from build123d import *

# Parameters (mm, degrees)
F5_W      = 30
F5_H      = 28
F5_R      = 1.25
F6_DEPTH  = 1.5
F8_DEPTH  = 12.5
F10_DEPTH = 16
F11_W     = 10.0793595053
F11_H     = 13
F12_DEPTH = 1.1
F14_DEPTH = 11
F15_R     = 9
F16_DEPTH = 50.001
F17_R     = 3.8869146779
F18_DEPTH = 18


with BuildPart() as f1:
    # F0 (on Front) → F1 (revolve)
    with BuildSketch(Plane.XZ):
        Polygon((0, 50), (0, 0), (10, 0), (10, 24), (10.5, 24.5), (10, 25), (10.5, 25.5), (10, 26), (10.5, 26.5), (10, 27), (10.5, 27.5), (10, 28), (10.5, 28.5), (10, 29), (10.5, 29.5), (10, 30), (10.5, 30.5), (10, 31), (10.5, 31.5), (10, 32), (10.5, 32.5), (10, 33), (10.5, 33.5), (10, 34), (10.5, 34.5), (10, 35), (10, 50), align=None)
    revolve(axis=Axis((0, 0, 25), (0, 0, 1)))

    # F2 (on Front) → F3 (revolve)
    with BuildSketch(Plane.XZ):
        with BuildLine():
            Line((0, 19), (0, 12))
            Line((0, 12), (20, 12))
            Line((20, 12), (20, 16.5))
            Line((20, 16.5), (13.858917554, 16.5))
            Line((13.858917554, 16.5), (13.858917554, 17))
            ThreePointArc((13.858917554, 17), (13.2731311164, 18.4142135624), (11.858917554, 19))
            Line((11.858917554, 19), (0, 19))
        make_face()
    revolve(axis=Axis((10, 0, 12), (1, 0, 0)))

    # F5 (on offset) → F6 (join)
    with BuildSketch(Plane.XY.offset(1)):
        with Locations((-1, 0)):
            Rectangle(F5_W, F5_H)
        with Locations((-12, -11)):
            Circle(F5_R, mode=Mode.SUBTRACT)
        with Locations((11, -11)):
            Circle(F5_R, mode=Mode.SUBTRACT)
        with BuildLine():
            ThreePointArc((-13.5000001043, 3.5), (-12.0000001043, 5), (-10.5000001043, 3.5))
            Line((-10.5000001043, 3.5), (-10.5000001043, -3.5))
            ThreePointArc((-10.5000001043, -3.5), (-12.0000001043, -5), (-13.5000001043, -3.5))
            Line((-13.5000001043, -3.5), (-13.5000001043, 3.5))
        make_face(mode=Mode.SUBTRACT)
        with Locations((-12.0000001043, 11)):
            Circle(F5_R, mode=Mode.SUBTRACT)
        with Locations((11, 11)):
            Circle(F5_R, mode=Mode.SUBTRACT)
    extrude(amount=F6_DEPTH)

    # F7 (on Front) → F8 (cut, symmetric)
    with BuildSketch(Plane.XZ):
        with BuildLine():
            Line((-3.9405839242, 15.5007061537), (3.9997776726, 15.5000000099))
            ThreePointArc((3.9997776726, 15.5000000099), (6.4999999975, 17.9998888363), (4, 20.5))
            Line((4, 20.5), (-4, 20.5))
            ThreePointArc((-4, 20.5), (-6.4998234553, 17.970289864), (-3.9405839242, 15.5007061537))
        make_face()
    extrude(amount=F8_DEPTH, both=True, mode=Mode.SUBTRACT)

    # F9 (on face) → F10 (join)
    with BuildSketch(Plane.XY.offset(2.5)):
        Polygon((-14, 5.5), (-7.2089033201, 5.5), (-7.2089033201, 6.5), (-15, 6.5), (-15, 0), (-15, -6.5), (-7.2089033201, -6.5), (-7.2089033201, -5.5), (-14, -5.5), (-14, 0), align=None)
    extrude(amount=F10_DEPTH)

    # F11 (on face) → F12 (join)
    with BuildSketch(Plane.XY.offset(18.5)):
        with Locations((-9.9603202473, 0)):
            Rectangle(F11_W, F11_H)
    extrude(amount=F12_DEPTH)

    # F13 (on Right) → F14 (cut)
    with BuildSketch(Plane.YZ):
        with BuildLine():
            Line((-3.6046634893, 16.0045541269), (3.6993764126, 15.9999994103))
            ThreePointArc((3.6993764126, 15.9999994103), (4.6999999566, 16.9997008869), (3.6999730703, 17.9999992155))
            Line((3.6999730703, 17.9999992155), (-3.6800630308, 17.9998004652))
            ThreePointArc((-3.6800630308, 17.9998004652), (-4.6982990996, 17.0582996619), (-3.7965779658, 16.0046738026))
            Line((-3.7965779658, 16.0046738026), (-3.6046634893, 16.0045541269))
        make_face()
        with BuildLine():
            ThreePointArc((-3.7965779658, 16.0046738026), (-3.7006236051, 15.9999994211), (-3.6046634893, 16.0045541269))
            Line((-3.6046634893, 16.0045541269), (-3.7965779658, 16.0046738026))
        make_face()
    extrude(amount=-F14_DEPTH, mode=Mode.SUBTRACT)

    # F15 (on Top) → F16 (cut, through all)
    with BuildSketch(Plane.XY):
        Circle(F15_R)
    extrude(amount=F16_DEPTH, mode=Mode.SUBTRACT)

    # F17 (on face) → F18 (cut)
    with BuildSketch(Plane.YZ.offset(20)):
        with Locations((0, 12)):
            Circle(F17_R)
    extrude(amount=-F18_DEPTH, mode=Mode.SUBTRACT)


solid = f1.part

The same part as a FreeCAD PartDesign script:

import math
import FreeCAD as App
import Part
import Sketcher

V = App.Vector
Q = App.Units.Quantity

doc = App.newDocument("Part")
body = doc.addObject("PartDesign::Body", "Body")

# Sketch on XZ plane
sketch1 = doc.addObject("Sketcher::SketchObject", "Sketch")
body.addObject(sketch1)
sketch1.AttachmentSupport = (doc.XZ_Plane, [""])
sketch1.MapMode = "FlatFace"
sketch1.addGeometry([
    Part.LineSegment(V(0, 50, 0), V(0, 0, 0)),  # 0
    Part.LineSegment(V(0, 0, 0), V(10, 0, 0)),  # 1
    Part.LineSegment(V(10, 0, 0), V(10, 24, 0)),  # 2
    Part.LineSegment(V(10, 24, 0), V(10.5, 24.5, 0)),  # 3
    Part.LineSegment(V(10.5, 24.5, 0), V(10, 25, 0)),  # 4
    Part.LineSegment(V(10, 25, 0), V(10.5, 25.5, 0)),  # 5
    Part.LineSegment(V(10.5, 25.5, 0), V(10, 26, 0)),  # 6
    Part.LineSegment(V(10, 26, 0), V(10.5, 26.5, 0)),  # 7
    Part.LineSegment(V(10.5, 26.5, 0), V(10, 27, 0)),  # 8
    Part.LineSegment(V(10, 27, 0), V(10.5, 27.5, 0)),  # 9
    Part.LineSegment(V(10.5, 27.5, 0), V(10, 28, 0)),  # 10
    Part.LineSegment(V(10, 28, 0), V(10.5, 28.5, 0)),  # 11
    Part.LineSegment(V(10.5, 28.5, 0), V(10, 29, 0)),  # 12
    Part.LineSegment(V(10, 29, 0), V(10.5, 29.5, 0)),  # 13
    Part.LineSegment(V(10.5, 29.5, 0), V(10, 30, 0)),  # 14
    Part.LineSegment(V(10, 30, 0), V(10.5, 30.5, 0)),  # 15
    Part.LineSegment(V(10.5, 30.5, 0), V(10, 31, 0)),  # 16
    Part.LineSegment(V(10, 31, 0), V(10.5, 31.5, 0)),  # 17
    Part.LineSegment(V(10.5, 31.5, 0), V(10, 32, 0)),  # 18
    Part.LineSegment(V(10, 32, 0), V(10.5, 32.5, 0)),  # 19
    Part.LineSegment(V(10.5, 32.5, 0), V(10, 33, 0)),  # 20
    Part.LineSegment(V(10, 33, 0), V(10.5, 33.5, 0)),  # 21
    Part.LineSegment(V(10.5, 33.5, 0), V(10, 34, 0)),  # 22
    Part.LineSegment(V(10, 34, 0), V(10.5, 34.5, 0)),  # 23
    Part.LineSegment(V(10.5, 34.5, 0), V(10, 35, 0)),  # 24
    Part.LineSegment(V(10, 35, 0), V(10, 50, 0)),  # 25
    Part.LineSegment(V(10, 50, 0), V(0, 50, 0)),  # 26
], False)
sketch1.addConstraint([
    Sketcher.Constraint("Coincident", 0, 2, 1, 1),
    Sketcher.Constraint("Coincident", 1, 2, 2, 1),
    Sketcher.Constraint("Coincident", 2, 2, 3, 1),
    Sketcher.Constraint("Coincident", 3, 2, 4, 1),
    Sketcher.Constraint("Coincident", 4, 2, 5, 1),
    Sketcher.Constraint("Coincident", 5, 2, 6, 1),
    Sketcher.Constraint("Coincident", 6, 2, 7, 1),
    Sketcher.Constraint("Coincident", 7, 2, 8, 1),
    Sketcher.Constraint("Coincident", 8, 2, 9, 1),
    Sketcher.Constraint("Coincident", 9, 2, 10, 1),
    Sketcher.Constraint("Coincident", 10, 2, 11, 1),
    Sketcher.Constraint("Coincident", 11, 2, 12, 1),
    Sketcher.Constraint("Coincident", 12, 2, 13, 1),
    Sketcher.Constraint("Coincident", 13, 2, 14, 1),
    Sketcher.Constraint("Coincident", 14, 2, 15, 1),
    Sketcher.Constraint("Coincident", 15, 2, 16, 1),
    Sketcher.Constraint("Coincident", 16, 2, 17, 1),
    Sketcher.Constraint("Coincident", 17, 2, 18, 1),
    Sketcher.Constraint("Coincident", 18, 2, 19, 1),
    Sketcher.Constraint("Coincident", 19, 2, 20, 1),
    Sketcher.Constraint("Coincident", 20, 2, 21, 1),
    Sketcher.Constraint("Coincident", 21, 2, 22, 1),
    Sketcher.Constraint("Coincident", 22, 2, 23, 1),
    Sketcher.Constraint("Coincident", 23, 2, 24, 1),
    Sketcher.Constraint("Coincident", 24, 2, 25, 1),
    Sketcher.Constraint("Coincident", 25, 2, 26, 1),
    Sketcher.Constraint("Coincident", 26, 2, 0, 1),
    Sketcher.Constraint("Vertical", 0),
    Sketcher.Constraint("Horizontal", 1),
    Sketcher.Constraint("Vertical", 2),
    Sketcher.Constraint("Vertical", 25),
    Sketcher.Constraint("Horizontal", 26),
    Sketcher.Constraint("Coincident", 0, 2, -1, 1),
    Sketcher.Constraint("Perpendicular", 3, 4),
    Sketcher.Constraint("Perpendicular", 4, 5),
    Sketcher.Constraint("Perpendicular", 5, 6),
    Sketcher.Constraint("Perpendicular", 6, 7),
    Sketcher.Constraint("Perpendicular", 7, 8),
    Sketcher.Constraint("Perpendicular", 8, 9),
    Sketcher.Constraint("Perpendicular", 9, 10),
    Sketcher.Constraint("Perpendicular", 10, 11),
    Sketcher.Constraint("Perpendicular", 11, 12),
    Sketcher.Constraint("Perpendicular", 12, 13),
    Sketcher.Constraint("Perpendicular", 13, 14),
    Sketcher.Constraint("Perpendicular", 14, 15),
    Sketcher.Constraint("Perpendicular", 15, 16),
    Sketcher.Constraint("Perpendicular", 16, 17),
    Sketcher.Constraint("Perpendicular", 17, 18),
    Sketcher.Constraint("Perpendicular", 18, 19),
    Sketcher.Constraint("Perpendicular", 19, 20),
    Sketcher.Constraint("Perpendicular", 20, 21),
    Sketcher.Constraint("Perpendicular", 21, 22),
    Sketcher.Constraint("Perpendicular", 22, 23),
    Sketcher.Constraint("Perpendicular", 23, 24),
    Sketcher.Constraint("Vertical", 2, 2, 4, 2),
    Sketcher.Constraint("Vertical", 3, 2, 5, 2),
    Sketcher.Constraint("Vertical", 4, 2, 6, 2),
    Sketcher.Constraint("Vertical", 5, 2, 7, 2),
    Sketcher.Constraint("Vertical", 6, 2, 8, 2),
    Sketcher.Constraint("Vertical", 7, 2, 9, 2),
    Sketcher.Constraint("Vertical", 8, 2, 10, 2),
    Sketcher.Constraint("Vertical", 9, 2, 11, 2),
    Sketcher.Constraint("Vertical", 10, 2, 12, 2),
    Sketcher.Constraint("Vertical", 11, 2, 13, 2),
    Sketcher.Constraint("Vertical", 12, 2, 14, 2),
    Sketcher.Constraint("Vertical", 13, 2, 15, 2),
    Sketcher.Constraint("Vertical", 14, 2, 16, 2),
    Sketcher.Constraint("Vertical", 15, 2, 17, 2),
    Sketcher.Constraint("Vertical", 16, 2, 18, 2),
    Sketcher.Constraint("Vertical", 17, 2, 19, 2),
    Sketcher.Constraint("Vertical", 18, 2, 20, 2),
    Sketcher.Constraint("Vertical", 19, 2, 21, 2),
    Sketcher.Constraint("Vertical", 20, 2, 22, 2),
    Sketcher.Constraint("Vertical", 21, 2, 23, 2),
    Sketcher.Constraint("Vertical", 22, 2, 24, 2),
    Sketcher.Constraint("Equal", 3, 4),
    Sketcher.Constraint("DistanceX", 1, 1, 1, 2, Q("10 mm")),
    Sketcher.Constraint("DistanceY", 0, 2, 0, 1, Q("50 mm")),
    Sketcher.Constraint("DistanceY", 2, 1, 2, 2, Q("24 mm")),
    Sketcher.Constraint("DistanceY", 25, 1, 25, 2, Q("15 mm")),
])
revolution = doc.addObject("PartDesign::Revolution", "Revolution")
body.addObject(revolution)
revolution.Profile = sketch1
revolution.ReferenceAxis = (sketch1, ["V_Axis"])
revolution.Angle = 360

# Sketch on XZ plane
sketch2 = doc.addObject("Sketcher::SketchObject", "Sketch001")
body.addObject(sketch2)
sketch2.AttachmentSupport = (doc.XZ_Plane, [""])
sketch2.MapMode = "FlatFace"
sketch2.addGeometry([
    Part.LineSegment(V(0, 19, 0), V(0, 12, 0)),  # 0
    Part.LineSegment(V(0, 12, 0), V(20, 12, 0)),  # 1
    Part.LineSegment(V(20, 12, 0), V(20, 16.5, 0)),  # 2
    Part.LineSegment(V(20, 16.5, 0), V(13.9, 16.5, 0)),  # 3
    Part.LineSegment(V(13.9, 16.5, 0), V(13.9, 17, 0)),  # 4
    Part.ArcOfCircle(Part.Circle(V(11.9, 17, 0), V(0, 0, 1), 2), math.radians(0), math.radians(90)),  # 5
    Part.LineSegment(V(11.9, 19, 0), V(0, 19, 0)),  # 6
], False)
sketch2.addGeometry(Part.LineSegment(V(0, 12, 0), V(20, 12, 0)), True)  # axis
sketch2.addConstraint([
    Sketcher.Constraint("Coincident", 0, 2, 1, 1),
    Sketcher.Constraint("Coincident", 1, 2, 2, 1),
    Sketcher.Constraint("Coincident", 2, 2, 3, 1),
    Sketcher.Constraint("Coincident", 3, 2, 4, 1),
    Sketcher.Constraint("Tangent", 4, 2, 5, 1),
    Sketcher.Constraint("Tangent", 5, 2, 6, 1),
    Sketcher.Constraint("Coincident", 6, 2, 0, 1),
    Sketcher.Constraint("Vertical", 0),
    Sketcher.Constraint("Horizontal", 1),
    Sketcher.Constraint("Vertical", 2),
    Sketcher.Constraint("Horizontal", 3),
    Sketcher.Constraint("Vertical", 4),
    Sketcher.Constraint("Horizontal", 6),
    Sketcher.Constraint("Horizontal", 7),
    Sketcher.Constraint("Coincident", 7, 1, 0, 2),
    Sketcher.Constraint("PointOnObject", 0, 2, -2),
    Sketcher.Constraint("Vertical", 2, 2, 7, 2),
    Sketcher.Constraint("Radius", 5, Q("2 mm")),
    Sketcher.Constraint("DistanceX", 1, 1, 1, 2, Q("20 mm")),
    Sketcher.Constraint("DistanceY", 0, 2, 0, 1, Q("7 mm")),
    Sketcher.Constraint("DistanceY", 2, 1, 2, 2, Q("4.5 mm")),
    Sketcher.Constraint("DistanceY", -1, 1, 5, 3, Q("17 mm")),
    Sketcher.Constraint("DistanceX", 3, 2, 3, 1, Q("6.141082 mm")),
])
revolution2 = doc.addObject("PartDesign::Revolution", "Revolution001")
body.addObject(revolution2)
revolution2.Profile = sketch2
revolution2.ReferenceAxis = (sketch2, ["Axis0"])
revolution2.Angle = 360

# Sketch on XY plane
sketch3 = doc.addObject("Sketcher::SketchObject", "Sketch002")
body.addObject(sketch3)
sketch3.AttachmentSupport = (doc.XY_Plane, [""])
sketch3.MapMode = "FlatFace"
sketch3.AttachmentOffset = App.Placement(V(0, 0, 1), App.Rotation())
sketch3.addGeometry([
    Part.LineSegment(V(-16, 14, 0), V(-16, -14, 0)),  # 0
    Part.LineSegment(V(-16, -14, 0), V(14, -14, 0)),  # 1
    Part.LineSegment(V(14, -14, 0), V(14, 14, 0)),  # 2
    Part.LineSegment(V(14, 14, 0), V(-16, 14, 0)),  # 3
    Part.Circle(V(-12, -11, 0), V(0, 0, 1), 1.2),  # 4
    Part.LineSegment(V(-13.5, -3.5, 0), V(-13.5, 3.5, 0)),  # 5
    Part.ArcOfCircle(Part.Circle(V(-12, 3.5, 0), V(0, 0, 1), 1.5), math.radians(0), math.radians(180)),  # 6
    Part.LineSegment(V(-10.5, 3.5, 0), V(-10.5, -3.5, 0)),  # 7
    Part.ArcOfCircle(Part.Circle(V(-12, -3.5, 0), V(0, 0, 1), 1.5), math.radians(180), math.radians(360)),  # 8
    Part.Circle(V(11, -11, 0), V(0, 0, 1), 1.2),  # 9
    Part.Circle(V(-12, 11, 0), V(0, 0, 1), 1.2),  # 10
    Part.Circle(V(11, 11, 0), V(0, 0, 1), 1.2),  # 11
], False)
sketch3.addConstraint([
    Sketcher.Constraint("Coincident", 0, 2, 1, 1),
    Sketcher.Constraint("Coincident", 1, 2, 2, 1),
    Sketcher.Constraint("Coincident", 2, 2, 3, 1),
    Sketcher.Constraint("Coincident", 3, 2, 0, 1),
    Sketcher.Constraint("Tangent", 5, 2, 6, 2),
    Sketcher.Constraint("Tangent", 6, 1, 7, 1),
    Sketcher.Constraint("Tangent", 7, 2, 8, 2),
    Sketcher.Constraint("Tangent", 8, 1, 5, 1),
    Sketcher.Constraint("Vertical", 0),
    Sketcher.Constraint("Horizontal", 1),
    Sketcher.Constraint("Vertical", 2),
    Sketcher.Constraint("Horizontal", 3),
    Sketcher.Constraint("Vertical", 5),
    Sketcher.Constraint("Vertical", 7),
    Sketcher.Constraint("Equal", 4, 9),
    Sketcher.Constraint("Equal", 9, 10),
    Sketcher.Constraint("Equal", 10, 11),
    Sketcher.Constraint("Symmetric", 4, 3, 10, 3, -1),
    Sketcher.Constraint("Symmetric", 9, 3, 11, 3, -1),
    Sketcher.Constraint("Horizontal", 4, 3, 9, 3),
    Sketcher.Constraint("Vertical", 4, 3, 6, 3),
    Sketcher.Constraint("Diameter", 4, Q("2.5 mm")),
    Sketcher.Constraint("Radius", 6, Q("1.5 mm")),
    Sketcher.Constraint("DistanceX", 1, 1, 1, 2, Q("30 mm")),
    Sketcher.Constraint("DistanceY", 0, 2, 0, 1, Q("28 mm")),
    Sketcher.Constraint("DistanceY", 5, 1, 5, 2, Q("7 mm")),
    Sketcher.Constraint("DistanceX", 4, 3, -1, 1, Q("12 mm")),
    Sketcher.Constraint("DistanceY", 4, 3, -1, 1, Q("11 mm")),
    Sketcher.Constraint("DistanceX", -1, 1, 9, 3, Q("11 mm")),
    Sketcher.Constraint("DistanceX", 0, 2, -1, 1, Q("16 mm")),
    Sketcher.Constraint("DistanceY", 0, 2, -1, 1, Q("14 mm")),
    Sketcher.Constraint("DistanceY", -1, 1, 6, 3, Q("3.5 mm")),
])
pad1 = doc.addObject("PartDesign::Pad", "Pad")
body.addObject(pad1)
pad1.Profile = sketch3
pad1.Length = 1.5

# Sketch on XZ plane
sketch4 = doc.addObject("Sketcher::SketchObject", "Sketch003")
body.addObject(sketch4)
sketch4.AttachmentSupport = (doc.XZ_Plane, [""])
sketch4.MapMode = "FlatFace"
sketch4.addGeometry([
    Part.LineSegment(V(-3.9, 15.5, 0), V(4, 15.5, 0)),
    Part.ArcOfCircle(Part.Circle(V(4, 18, 0), V(0, 0, 1), 2.5), math.radians(-90), math.radians(90)),
    Part.LineSegment(V(4, 20.5, 0), V(-4, 20.5, 0)),
    Part.ArcOfCircle(Part.Circle(V(-4, 18, 0), V(0, 0, 1), 2.5), math.radians(90), math.radians(271)),
], False)
sketch4.addConstraint([
    Sketcher.Constraint("Tangent", 0, 2, 1, 1),
    Sketcher.Constraint("Tangent", 1, 2, 2, 1),
    Sketcher.Constraint("Tangent", 2, 2, 3, 1),
    Sketcher.Constraint("Coincident", 3, 2, 0, 1),
    Sketcher.Constraint("Horizontal", 2),
    Sketcher.Constraint("Equal", 1, 3),
    Sketcher.Constraint("Radius", 1, Q("2.5 mm")),
    Sketcher.Constraint("DistanceX", 2, 2, 2, 1, Q("8 mm")),
    Sketcher.Constraint("DistanceX", -1, 1, 1, 3, Q("4 mm")),
    Sketcher.Constraint("DistanceY", -1, 1, 1, 3, Q("18 mm")),
    Sketcher.Constraint("Distance", 0, Q("7.940362 mm")),
])
pocket1 = doc.addObject("PartDesign::Pocket", "Pocket")
body.addObject(pocket1)
pocket1.Profile = sketch4
pocket1.Length = 25
pocket1.Midplane = True

# Sketch on XY plane
sketch5 = doc.addObject("Sketcher::SketchObject", "Sketch004")
body.addObject(sketch5)
sketch5.AttachmentSupport = (doc.XY_Plane, [""])
sketch5.MapMode = "FlatFace"
sketch5.AttachmentOffset = App.Placement(V(0, 0, 2.5), App.Rotation())
sketch5.addGeometry([
    Part.LineSegment(V(-14, 5.5, 0), V(-7.2, 5.5, 0)),  # 0
    Part.LineSegment(V(-7.2, 5.5, 0), V(-7.2, 6.5, 0)),  # 1
    Part.LineSegment(V(-7.2, 6.5, 0), V(-15, 6.5, 0)),  # 2
    Part.LineSegment(V(-15, 6.5, 0), V(-15, -6.5, 0)),  # 3
    Part.LineSegment(V(-15, -6.5, 0), V(-7.2, -6.5, 0)),  # 4
    Part.LineSegment(V(-7.2, -6.5, 0), V(-7.2, -5.5, 0)),  # 5
    Part.LineSegment(V(-7.2, -5.5, 0), V(-14, -5.5, 0)),  # 6
    Part.LineSegment(V(-14, -5.5, 0), V(-14, 5.5, 0)),  # 7
], False)
sketch5.addConstraint([
    Sketcher.Constraint("Coincident", 0, 2, 1, 1),
    Sketcher.Constraint("Coincident", 1, 2, 2, 1),
    Sketcher.Constraint("Coincident", 2, 2, 3, 1),
    Sketcher.Constraint("Coincident", 3, 2, 4, 1),
    Sketcher.Constraint("Coincident", 4, 2, 5, 1),
    Sketcher.Constraint("Coincident", 5, 2, 6, 1),
    Sketcher.Constraint("Coincident", 6, 2, 7, 1),
    Sketcher.Constraint("Coincident", 7, 2, 0, 1),
    Sketcher.Constraint("Horizontal", 0),
    Sketcher.Constraint("Vertical", 1),
    Sketcher.Constraint("Horizontal", 2),
    Sketcher.Constraint("Vertical", 3),
    Sketcher.Constraint("Horizontal", 4),
    Sketcher.Constraint("Vertical", 5),
    Sketcher.Constraint("Horizontal", 6),
    Sketcher.Constraint("Vertical", 7),
    Sketcher.Constraint("Symmetric", 1, 2, 4, 2, -1),
    Sketcher.Constraint("Equal", 1, 5),
    Sketcher.Constraint("DistanceY", 1, 1, 1, 2, Q("1 mm")),
    Sketcher.Constraint("DistanceY", 3, 2, 3, 1, Q("13 mm")),
    Sketcher.Constraint("DistanceX", 2, 2, -1, 1, Q("15 mm")),
    Sketcher.Constraint("DistanceX", 6, 2, -1, 1, Q("14 mm")),
    Sketcher.Constraint("DistanceX", 0, 1, 0, 2, Q("6.791097 mm")),
])
pad2 = doc.addObject("PartDesign::Pad", "Pad001")
body.addObject(pad2)
pad2.Profile = sketch5
pad2.Length = 16

# Sketch on XY plane
sketch6 = doc.addObject("Sketcher::SketchObject", "Sketch005")
body.addObject(sketch6)
sketch6.AttachmentSupport = (doc.XY_Plane, [""])
sketch6.MapMode = "FlatFace"
sketch6.AttachmentOffset = App.Placement(V(0, 0, 18.5), App.Rotation())
sketch6.addGeometry([
    Part.LineSegment(V(-15, 6, 0), V(-15, -6, 0)),
    Part.LineSegment(V(-15, -6, 0), V(-5, -6, 0)),
    Part.LineSegment(V(-5, -6, 0), V(-5, 6, 0)),
    Part.LineSegment(V(-5, 6, 0), V(-15, 6, 0)),
], False)
sketch6.addConstraint([
    Sketcher.Constraint("Coincident", 0, 2, 1, 1),
    Sketcher.Constraint("Coincident", 1, 2, 2, 1),
    Sketcher.Constraint("Coincident", 2, 2, 3, 1),
    Sketcher.Constraint("Coincident", 3, 2, 0, 1),
    Sketcher.Constraint("Vertical", 0),
    Sketcher.Constraint("Horizontal", 1),
    Sketcher.Constraint("Vertical", 2),
    Sketcher.Constraint("Horizontal", 3),
    Sketcher.Constraint("DistanceY", 0, 2, 0, 1, Q("13 mm")),
    Sketcher.Constraint("DistanceX", 0, 2, -1, 1, Q("15 mm")),
    Sketcher.Constraint("DistanceY", 0, 2, -1, 1, Q("6.5 mm")),
    Sketcher.Constraint("DistanceX", 1, 1, 1, 2, Q("10.07936 mm")),
])
pad3 = doc.addObject("PartDesign::Pad", "Pad002")
body.addObject(pad3)
pad3.Profile = sketch6
pad3.Length = 1.1

# Sketch on YZ plane
sketch7 = doc.addObject("Sketcher::SketchObject", "Sketch006")
body.addObject(sketch7)
sketch7.AttachmentSupport = (doc.YZ_Plane, [""])
sketch7.MapMode = "FlatFace"
sketch7.addGeometry([
    Part.LineSegment(V(-3.6, 16, 0), V(3.7, 16, 0)),  # 0
    Part.ArcOfCircle(Part.Circle(V(3.7, 17, 0), V(0, 0, 1), 1), math.radians(-90), math.radians(90)),  # 1
    Part.LineSegment(V(3.7, 18, 0), V(-3.68, 18, 0)),  # 2
    Part.ArcOfCircle(Part.Circle(V(-3.7, 17, 0), V(0, 0, 1), 1), math.radians(89), math.radians(264)),  # 3
    Part.ArcOfCircle(Part.Circle(V(-3.7, 17, 0), V(0, 0, 1), 1), math.radians(-95.54), math.radians(-84.53)),  # 4
], False)
sketch7.addConstraint([
    Sketcher.Constraint("Tangent", 0, 2, 1, 1),
    Sketcher.Constraint("Tangent", 1, 2, 2, 1),
    Sketcher.Constraint("Coincident", 2, 2, 3, 1),
    Sketcher.Constraint("Tangent", 3, 2, 4, 1),
    Sketcher.Constraint("Coincident", 4, 2, 0, 1),
    Sketcher.Constraint("Equal", 1, 3),
    Sketcher.Constraint("Equal", 3, 4),
    Sketcher.Constraint("Symmetric", 1, 3, 3, 3, -2),
    Sketcher.Constraint("Radius", 1, Q("1 mm")),
    Sketcher.Constraint("DistanceY", -1, 1, 1, 3, Q("16.999999 mm")),
    Sketcher.Constraint("DistanceX", -1, 1, 1, 3, Q("3.7 mm")),
    Sketcher.Constraint("DistanceY", -1, 1, 2, 2, Q("17.9998 mm")),
    Sketcher.Constraint("DistanceX", 2, 2, 4, 2, Q("0.0754 mm")),
    Sketcher.Constraint("DistanceY", 4, 2, 3, 2, Q("0.00012 mm")),
])
pocket2 = doc.addObject("PartDesign::Pocket", "Pocket001")
body.addObject(pocket2)
pocket2.Profile = sketch7
pocket2.Length = 11

# Sketch on XY plane
sketch8 = doc.addObject("Sketcher::SketchObject", "Sketch007")
body.addObject(sketch8)
sketch8.AttachmentSupport = (doc.XY_Plane, [""])
sketch8.MapMode = "FlatFace"
sketch8.addGeometry(Part.Circle(V(0, 0, 0), V(0, 0, 1), 9), False)
sketch8.addConstraint([
    Sketcher.Constraint("Coincident", 0, 3, -1, 1),
    Sketcher.Constraint("Diameter", 0, Q("18 mm")),
])
pocket3 = doc.addObject("PartDesign::Pocket", "Pocket002")
body.addObject(pocket3)
pocket3.Profile = sketch8
pocket3.Type = "ThroughAll"
pocket3.Reversed = True

# Sketch on YZ plane
sketch9 = doc.addObject("Sketcher::SketchObject", "Sketch008")
body.addObject(sketch9)
sketch9.AttachmentSupport = (doc.YZ_Plane, [""])
sketch9.MapMode = "FlatFace"
sketch9.AttachmentOffset = App.Placement(V(0, 0, 20), App.Rotation())
sketch9.addGeometry(Part.Circle(V(0, 12, 0), V(0, 0, 1), 3.9), False)
sketch9.addConstraint([
    Sketcher.Constraint("PointOnObject", 0, 3, -2),
    Sketcher.Constraint("DistanceY", -1, 1, 0, 3, Q("12 mm")),
    Sketcher.Constraint("Diameter", 0, Q("7.773829 mm")),
])
pocket4 = doc.addObject("PartDesign::Pocket", "Pocket003")
body.addObject(pocket4)
pocket4.Profile = sketch9
pocket4.Length = 18

doc.recompute()
